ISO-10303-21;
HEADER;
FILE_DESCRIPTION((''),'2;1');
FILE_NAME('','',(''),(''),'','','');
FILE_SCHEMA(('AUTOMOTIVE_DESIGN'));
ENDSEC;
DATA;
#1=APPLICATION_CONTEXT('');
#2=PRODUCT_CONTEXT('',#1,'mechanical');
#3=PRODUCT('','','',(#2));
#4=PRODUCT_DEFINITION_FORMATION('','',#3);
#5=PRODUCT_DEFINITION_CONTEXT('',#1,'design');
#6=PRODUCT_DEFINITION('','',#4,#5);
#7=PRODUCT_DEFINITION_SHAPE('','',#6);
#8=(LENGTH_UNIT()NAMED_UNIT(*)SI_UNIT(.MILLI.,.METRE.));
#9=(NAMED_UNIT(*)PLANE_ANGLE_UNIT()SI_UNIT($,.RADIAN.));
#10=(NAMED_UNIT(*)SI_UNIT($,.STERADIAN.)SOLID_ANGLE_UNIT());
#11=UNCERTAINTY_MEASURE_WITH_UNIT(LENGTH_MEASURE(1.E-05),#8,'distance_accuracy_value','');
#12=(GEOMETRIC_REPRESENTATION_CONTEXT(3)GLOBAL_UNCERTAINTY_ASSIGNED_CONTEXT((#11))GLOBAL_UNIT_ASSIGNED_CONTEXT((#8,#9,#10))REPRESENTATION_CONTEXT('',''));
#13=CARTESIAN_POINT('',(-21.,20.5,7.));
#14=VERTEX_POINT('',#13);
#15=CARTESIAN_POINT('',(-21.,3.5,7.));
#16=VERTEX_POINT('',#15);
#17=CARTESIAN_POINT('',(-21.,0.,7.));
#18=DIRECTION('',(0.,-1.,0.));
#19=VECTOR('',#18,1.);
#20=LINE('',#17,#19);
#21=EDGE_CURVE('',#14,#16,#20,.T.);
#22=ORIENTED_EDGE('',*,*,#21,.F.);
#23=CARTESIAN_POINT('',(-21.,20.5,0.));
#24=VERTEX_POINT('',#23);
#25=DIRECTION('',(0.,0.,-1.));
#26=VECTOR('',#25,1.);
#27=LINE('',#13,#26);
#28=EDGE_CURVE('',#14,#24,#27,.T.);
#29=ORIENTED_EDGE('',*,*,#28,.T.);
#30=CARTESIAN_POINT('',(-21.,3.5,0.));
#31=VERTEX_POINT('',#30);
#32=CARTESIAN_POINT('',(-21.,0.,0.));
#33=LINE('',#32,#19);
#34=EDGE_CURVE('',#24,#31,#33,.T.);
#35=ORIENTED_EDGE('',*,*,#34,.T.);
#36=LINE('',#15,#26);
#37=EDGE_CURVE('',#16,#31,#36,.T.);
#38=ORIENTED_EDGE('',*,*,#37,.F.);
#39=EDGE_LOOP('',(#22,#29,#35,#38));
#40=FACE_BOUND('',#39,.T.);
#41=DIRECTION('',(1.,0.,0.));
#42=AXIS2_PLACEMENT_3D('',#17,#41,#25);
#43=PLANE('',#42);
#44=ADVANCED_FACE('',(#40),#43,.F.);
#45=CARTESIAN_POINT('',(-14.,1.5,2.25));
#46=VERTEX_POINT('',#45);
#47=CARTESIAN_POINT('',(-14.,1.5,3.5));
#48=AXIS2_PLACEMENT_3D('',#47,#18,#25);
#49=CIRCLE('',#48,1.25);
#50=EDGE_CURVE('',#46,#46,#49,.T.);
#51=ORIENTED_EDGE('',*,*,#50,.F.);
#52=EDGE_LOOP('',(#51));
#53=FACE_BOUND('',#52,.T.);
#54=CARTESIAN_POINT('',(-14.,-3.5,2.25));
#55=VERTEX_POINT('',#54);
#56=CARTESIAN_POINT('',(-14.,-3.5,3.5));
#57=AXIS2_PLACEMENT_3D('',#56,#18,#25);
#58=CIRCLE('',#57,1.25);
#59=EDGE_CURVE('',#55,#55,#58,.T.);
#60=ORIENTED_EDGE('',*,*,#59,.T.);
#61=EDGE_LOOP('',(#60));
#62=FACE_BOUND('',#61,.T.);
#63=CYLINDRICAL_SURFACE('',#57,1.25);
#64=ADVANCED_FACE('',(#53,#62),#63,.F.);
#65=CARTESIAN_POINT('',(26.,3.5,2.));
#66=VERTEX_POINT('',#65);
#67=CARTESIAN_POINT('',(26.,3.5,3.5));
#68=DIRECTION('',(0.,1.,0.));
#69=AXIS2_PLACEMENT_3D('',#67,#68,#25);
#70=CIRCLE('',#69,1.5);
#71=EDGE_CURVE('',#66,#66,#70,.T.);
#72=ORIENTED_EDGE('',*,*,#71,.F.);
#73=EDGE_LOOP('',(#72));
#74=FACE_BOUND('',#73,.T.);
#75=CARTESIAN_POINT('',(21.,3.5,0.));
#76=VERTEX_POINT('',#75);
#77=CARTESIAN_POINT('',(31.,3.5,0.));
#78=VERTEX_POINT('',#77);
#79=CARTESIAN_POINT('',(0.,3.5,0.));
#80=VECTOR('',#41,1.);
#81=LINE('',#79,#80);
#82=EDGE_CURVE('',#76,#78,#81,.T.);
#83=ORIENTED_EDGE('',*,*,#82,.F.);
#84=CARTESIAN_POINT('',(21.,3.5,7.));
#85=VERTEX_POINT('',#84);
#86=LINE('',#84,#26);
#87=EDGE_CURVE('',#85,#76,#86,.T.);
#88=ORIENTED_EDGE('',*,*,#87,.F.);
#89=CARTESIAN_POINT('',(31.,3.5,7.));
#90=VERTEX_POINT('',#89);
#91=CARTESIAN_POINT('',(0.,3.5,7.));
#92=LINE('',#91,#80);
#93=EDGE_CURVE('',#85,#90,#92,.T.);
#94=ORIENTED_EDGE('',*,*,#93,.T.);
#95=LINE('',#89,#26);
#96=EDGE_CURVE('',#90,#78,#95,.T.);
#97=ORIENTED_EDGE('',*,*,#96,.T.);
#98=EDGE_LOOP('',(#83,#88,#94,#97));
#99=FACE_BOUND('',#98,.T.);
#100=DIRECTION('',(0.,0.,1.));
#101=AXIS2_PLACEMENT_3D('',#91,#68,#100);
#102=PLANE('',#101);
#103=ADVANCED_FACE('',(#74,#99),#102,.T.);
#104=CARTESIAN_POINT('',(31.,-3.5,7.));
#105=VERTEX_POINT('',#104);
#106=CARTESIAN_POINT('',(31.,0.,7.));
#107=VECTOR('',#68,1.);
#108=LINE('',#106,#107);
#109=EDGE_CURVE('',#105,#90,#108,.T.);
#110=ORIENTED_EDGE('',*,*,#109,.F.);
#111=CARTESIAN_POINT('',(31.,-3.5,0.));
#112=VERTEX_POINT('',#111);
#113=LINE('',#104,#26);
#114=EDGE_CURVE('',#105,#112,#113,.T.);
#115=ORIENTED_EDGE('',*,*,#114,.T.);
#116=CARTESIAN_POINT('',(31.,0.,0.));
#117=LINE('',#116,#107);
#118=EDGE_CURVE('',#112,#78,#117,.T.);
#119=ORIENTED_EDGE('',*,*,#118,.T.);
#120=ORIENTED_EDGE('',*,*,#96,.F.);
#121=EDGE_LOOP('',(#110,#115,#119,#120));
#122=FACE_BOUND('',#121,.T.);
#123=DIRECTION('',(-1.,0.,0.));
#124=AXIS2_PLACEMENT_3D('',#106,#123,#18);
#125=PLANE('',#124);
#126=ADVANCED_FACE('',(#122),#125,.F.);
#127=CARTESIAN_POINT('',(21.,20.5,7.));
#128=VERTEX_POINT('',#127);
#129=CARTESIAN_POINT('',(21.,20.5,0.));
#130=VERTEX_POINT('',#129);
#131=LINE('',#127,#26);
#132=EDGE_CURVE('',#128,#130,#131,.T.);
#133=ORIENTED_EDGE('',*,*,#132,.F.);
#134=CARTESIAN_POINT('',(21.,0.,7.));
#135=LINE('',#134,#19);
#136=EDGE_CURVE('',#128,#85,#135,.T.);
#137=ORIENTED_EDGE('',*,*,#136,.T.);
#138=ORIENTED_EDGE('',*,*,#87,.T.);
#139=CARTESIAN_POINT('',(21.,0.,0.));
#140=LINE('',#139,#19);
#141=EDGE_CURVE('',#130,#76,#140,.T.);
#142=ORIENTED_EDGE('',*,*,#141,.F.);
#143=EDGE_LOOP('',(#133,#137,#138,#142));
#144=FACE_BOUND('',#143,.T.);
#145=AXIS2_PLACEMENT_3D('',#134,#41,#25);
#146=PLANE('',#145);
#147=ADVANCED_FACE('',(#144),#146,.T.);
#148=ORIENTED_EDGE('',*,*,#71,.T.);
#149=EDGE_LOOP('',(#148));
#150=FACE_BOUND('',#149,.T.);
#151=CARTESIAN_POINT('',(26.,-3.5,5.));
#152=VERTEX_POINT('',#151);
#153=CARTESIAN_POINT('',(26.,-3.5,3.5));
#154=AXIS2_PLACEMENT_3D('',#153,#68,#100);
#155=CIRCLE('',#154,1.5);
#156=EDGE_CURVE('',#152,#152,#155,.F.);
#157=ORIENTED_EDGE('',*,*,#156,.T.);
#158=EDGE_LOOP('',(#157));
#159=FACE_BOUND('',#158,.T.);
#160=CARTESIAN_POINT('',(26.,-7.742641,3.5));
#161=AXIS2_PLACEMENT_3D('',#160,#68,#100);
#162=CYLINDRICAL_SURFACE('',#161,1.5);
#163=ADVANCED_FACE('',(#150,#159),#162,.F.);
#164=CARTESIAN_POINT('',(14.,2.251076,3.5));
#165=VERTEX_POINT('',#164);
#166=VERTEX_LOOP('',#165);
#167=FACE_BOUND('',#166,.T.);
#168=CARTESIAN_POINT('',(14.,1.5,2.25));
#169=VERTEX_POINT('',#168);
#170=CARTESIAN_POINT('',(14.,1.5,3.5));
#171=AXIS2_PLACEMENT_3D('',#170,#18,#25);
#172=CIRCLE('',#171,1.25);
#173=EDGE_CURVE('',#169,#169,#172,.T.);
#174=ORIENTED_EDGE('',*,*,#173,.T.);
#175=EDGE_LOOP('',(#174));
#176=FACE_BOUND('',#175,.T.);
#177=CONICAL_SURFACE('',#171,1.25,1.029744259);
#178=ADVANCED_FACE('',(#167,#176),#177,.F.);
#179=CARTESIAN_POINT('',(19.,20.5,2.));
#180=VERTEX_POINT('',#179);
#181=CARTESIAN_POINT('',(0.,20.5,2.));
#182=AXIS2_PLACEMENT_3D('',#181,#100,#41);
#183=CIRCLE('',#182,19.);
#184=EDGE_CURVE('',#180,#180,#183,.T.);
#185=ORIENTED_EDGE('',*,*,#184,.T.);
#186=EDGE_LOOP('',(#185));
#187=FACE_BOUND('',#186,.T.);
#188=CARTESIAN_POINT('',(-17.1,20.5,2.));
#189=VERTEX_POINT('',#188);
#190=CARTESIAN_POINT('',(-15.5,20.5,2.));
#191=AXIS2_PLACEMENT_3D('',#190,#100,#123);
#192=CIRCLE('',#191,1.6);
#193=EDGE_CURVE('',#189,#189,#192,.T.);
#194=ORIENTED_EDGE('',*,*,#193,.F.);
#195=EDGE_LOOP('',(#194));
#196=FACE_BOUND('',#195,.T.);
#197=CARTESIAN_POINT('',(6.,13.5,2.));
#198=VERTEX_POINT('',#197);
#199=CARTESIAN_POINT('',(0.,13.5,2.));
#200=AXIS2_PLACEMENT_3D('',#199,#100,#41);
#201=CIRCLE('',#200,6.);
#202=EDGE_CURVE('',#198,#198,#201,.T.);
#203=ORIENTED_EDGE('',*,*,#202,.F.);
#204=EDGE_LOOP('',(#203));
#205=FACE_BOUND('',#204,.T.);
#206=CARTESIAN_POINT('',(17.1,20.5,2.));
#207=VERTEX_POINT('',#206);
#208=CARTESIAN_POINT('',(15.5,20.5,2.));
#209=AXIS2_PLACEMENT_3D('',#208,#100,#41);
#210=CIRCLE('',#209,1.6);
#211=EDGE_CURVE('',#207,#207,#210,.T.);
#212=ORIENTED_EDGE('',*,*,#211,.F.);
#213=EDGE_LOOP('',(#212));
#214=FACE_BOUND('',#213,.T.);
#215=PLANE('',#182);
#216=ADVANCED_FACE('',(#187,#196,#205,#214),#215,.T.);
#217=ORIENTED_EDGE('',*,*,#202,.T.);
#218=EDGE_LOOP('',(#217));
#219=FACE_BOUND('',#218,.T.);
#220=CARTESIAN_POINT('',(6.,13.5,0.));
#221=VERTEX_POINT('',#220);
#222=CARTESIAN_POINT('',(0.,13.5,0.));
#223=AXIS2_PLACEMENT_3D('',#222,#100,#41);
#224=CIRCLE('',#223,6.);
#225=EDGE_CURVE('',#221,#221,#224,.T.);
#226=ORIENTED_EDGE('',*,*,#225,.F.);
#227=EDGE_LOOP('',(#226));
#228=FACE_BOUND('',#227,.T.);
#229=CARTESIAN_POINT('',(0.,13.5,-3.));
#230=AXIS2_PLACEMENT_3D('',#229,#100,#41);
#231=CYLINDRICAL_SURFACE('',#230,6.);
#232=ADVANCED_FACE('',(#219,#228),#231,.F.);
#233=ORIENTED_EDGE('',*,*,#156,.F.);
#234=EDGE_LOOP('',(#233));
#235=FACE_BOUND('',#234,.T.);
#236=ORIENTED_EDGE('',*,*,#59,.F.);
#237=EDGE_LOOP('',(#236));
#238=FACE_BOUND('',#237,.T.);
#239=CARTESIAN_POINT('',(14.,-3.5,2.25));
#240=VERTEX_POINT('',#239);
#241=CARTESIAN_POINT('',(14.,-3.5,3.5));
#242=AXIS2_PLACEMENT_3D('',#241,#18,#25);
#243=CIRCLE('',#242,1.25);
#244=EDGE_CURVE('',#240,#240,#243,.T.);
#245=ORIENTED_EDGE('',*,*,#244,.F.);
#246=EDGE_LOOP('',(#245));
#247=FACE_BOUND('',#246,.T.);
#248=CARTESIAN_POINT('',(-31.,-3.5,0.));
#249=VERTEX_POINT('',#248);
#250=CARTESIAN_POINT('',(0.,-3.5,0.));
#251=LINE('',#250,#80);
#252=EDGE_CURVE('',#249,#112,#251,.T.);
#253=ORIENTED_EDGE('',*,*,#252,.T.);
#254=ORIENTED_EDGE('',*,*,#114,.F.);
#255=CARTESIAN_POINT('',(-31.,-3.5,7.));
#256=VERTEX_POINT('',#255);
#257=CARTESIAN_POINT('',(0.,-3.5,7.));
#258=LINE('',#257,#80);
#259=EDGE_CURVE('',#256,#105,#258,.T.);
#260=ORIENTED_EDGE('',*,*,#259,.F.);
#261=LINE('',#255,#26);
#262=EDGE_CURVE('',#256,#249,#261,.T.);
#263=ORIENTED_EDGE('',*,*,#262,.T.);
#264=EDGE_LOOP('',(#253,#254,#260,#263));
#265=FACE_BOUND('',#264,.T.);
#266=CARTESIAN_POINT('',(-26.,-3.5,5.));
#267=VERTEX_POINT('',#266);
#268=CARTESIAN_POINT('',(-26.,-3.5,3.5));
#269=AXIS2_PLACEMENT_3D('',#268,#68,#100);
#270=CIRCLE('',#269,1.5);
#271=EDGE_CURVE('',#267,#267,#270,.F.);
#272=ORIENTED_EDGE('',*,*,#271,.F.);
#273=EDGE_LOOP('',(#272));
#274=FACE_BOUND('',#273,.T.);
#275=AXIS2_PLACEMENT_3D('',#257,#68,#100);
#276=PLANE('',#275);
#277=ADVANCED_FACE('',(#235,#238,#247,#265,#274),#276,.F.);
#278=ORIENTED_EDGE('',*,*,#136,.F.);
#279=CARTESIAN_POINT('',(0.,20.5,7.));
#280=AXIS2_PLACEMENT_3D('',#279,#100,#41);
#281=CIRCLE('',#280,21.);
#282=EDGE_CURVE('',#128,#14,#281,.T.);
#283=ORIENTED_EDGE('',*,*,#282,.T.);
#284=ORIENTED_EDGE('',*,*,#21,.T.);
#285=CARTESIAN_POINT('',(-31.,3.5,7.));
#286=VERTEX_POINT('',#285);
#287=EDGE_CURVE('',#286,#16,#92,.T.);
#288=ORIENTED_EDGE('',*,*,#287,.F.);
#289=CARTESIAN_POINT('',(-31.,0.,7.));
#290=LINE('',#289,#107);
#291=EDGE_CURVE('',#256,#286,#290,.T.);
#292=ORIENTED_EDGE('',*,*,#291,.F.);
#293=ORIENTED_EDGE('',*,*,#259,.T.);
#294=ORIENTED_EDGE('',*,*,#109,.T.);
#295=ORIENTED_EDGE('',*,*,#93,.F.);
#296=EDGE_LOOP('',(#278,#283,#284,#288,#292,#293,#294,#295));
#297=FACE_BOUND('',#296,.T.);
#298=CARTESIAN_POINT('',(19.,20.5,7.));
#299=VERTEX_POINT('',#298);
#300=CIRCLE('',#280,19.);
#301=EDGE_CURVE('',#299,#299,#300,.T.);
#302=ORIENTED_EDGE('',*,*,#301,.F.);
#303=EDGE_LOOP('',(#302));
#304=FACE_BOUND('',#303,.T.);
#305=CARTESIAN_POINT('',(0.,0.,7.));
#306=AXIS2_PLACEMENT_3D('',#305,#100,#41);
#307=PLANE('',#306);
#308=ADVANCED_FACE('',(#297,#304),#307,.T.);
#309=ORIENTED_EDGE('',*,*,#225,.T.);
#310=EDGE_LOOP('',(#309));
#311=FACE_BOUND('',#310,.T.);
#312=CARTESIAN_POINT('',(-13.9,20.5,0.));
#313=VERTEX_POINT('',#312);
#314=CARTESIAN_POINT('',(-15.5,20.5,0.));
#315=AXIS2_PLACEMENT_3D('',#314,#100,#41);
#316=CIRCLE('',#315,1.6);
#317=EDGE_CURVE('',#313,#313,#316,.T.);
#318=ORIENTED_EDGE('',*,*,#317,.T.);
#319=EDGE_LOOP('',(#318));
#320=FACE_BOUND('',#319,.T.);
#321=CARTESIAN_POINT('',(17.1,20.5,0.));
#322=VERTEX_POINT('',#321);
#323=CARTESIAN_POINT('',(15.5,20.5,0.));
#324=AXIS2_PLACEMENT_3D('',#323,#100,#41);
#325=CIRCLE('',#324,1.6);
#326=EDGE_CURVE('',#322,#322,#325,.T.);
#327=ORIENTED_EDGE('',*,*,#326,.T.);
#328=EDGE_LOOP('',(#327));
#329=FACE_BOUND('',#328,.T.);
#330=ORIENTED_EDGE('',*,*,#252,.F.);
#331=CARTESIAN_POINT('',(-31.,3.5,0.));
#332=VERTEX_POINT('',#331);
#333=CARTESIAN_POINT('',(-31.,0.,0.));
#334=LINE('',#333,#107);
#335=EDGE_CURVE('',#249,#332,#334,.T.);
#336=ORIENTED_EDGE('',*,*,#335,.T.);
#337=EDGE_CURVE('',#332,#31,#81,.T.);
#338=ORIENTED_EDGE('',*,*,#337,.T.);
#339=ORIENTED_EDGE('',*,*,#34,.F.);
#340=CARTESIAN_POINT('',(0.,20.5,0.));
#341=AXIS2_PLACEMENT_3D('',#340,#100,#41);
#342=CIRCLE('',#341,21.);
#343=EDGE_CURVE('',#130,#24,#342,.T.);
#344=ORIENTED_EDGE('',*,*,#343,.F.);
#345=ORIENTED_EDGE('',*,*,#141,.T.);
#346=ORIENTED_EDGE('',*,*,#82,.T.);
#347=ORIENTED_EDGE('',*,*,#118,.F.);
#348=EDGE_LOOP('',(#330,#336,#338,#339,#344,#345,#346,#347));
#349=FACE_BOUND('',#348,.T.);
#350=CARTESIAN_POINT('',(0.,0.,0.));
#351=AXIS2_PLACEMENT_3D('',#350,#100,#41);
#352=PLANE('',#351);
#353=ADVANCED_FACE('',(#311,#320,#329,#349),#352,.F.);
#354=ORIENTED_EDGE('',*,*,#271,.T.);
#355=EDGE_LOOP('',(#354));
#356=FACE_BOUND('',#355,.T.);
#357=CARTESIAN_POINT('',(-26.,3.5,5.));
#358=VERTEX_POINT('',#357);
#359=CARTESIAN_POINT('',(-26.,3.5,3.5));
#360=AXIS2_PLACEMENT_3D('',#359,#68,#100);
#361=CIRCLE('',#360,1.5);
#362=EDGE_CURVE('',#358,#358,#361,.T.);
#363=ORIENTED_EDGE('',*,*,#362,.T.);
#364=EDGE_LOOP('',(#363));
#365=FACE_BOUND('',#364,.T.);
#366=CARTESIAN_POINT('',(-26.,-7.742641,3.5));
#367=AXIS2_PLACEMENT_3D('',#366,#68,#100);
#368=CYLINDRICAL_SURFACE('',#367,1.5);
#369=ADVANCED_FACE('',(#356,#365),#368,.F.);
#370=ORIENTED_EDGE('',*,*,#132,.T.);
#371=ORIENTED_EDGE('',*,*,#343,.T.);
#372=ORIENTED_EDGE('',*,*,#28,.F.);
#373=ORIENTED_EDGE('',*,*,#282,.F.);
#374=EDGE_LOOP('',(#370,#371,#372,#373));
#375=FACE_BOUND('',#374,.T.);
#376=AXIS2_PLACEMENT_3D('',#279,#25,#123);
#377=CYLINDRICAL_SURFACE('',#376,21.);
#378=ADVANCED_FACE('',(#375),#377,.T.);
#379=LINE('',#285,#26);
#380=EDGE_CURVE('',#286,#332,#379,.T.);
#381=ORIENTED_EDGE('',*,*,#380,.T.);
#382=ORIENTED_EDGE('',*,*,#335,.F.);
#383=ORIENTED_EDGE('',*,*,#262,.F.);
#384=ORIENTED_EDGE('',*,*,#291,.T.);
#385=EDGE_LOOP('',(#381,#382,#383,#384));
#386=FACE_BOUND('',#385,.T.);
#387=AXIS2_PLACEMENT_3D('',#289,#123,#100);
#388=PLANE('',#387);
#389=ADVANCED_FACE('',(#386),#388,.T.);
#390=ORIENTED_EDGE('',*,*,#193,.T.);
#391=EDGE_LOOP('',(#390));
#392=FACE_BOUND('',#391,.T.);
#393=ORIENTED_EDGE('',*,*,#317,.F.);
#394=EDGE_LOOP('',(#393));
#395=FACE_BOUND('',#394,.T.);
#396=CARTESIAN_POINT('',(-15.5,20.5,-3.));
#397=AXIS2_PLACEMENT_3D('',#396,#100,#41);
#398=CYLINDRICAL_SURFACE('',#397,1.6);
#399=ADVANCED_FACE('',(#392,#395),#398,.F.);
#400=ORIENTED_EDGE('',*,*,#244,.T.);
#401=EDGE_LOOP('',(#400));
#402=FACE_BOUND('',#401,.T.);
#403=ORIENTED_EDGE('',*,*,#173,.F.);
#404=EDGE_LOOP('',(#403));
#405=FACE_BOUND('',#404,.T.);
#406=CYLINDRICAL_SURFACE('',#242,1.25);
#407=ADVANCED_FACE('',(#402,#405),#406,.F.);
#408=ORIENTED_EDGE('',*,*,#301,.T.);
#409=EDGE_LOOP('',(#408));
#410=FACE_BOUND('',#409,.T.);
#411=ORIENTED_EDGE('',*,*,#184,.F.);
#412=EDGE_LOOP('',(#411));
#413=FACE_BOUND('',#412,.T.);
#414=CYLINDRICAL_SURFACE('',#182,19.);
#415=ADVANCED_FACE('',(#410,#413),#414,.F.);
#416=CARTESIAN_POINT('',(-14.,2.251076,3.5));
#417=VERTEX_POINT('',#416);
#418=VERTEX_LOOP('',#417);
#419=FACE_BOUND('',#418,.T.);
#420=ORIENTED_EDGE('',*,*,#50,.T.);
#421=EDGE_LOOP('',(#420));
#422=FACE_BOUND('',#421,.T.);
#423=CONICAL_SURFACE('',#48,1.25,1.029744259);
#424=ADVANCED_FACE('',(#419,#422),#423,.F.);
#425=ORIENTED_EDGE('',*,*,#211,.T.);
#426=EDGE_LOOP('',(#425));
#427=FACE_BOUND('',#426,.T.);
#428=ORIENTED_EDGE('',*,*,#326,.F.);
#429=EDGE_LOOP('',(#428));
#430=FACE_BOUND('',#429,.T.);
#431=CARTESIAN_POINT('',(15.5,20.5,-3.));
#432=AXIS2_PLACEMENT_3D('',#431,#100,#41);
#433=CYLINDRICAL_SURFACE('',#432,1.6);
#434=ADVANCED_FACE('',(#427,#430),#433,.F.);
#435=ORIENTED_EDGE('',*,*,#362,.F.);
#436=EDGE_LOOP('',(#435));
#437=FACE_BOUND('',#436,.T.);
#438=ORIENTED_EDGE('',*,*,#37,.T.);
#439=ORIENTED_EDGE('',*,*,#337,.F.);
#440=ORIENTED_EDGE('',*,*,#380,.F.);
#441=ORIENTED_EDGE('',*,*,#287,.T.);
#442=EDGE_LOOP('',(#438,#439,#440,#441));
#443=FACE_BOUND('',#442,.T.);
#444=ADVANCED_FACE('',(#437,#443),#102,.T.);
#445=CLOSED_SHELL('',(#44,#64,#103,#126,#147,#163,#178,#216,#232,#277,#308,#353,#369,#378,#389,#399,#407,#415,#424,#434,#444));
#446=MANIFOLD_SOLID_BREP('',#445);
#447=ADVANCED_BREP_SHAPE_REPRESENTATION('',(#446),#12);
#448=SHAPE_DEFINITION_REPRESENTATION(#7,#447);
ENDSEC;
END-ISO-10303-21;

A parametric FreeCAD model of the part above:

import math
import FreeCAD as App
import Part
import Sketcher
Q = App.Units.Quantity

doc = App.newDocument("Part")
body = doc.addObject("PartDesign::Body", "Body")

# Sketch on XY plane
sketch1 = doc.addObject("Sketcher::SketchObject", "Sketch")
body.addObject(sketch1)
sketch1.AttachmentSupport = (doc.XY_Plane, [""])
sketch1.MapMode = "FlatFace"
sketch1.addGeometry([
    Part.LineSegment(App.Vector(31, 4, 0), App.Vector(21, 4, 0)),  # 0
    Part.LineSegment(App.Vector(21, 4, 0), App.Vector(21, 20, 0)),  # 1
    Part.ArcOfCircle(Part.Circle(App.Vector(0, 20, 0), App.Vector(0, 0, 1), 21), math.radians(0), math.radians(180)),  # 2
    Part.LineSegment(App.Vector(-21, 20, 0), App.Vector(-21, 4, 0)),  # 3
    Part.LineSegment(App.Vector(-21, 4, 0), App.Vector(-31, 4, 0)),  # 4
    Part.LineSegment(App.Vector(-31, 4, 0), App.Vector(-31, -4, 0)),  # 5
    Part.LineSegment(App.Vector(-31, -4, 0), App.Vector(31, -4, 0)),  # 6
    Part.LineSegment(App.Vector(31, -4, 0), App.Vector(31, 4, 0)),  # 7
], False)
sketch1.addConstraint([
    Sketcher.Constraint("Coincident", 0, 2, 1, 1),
    Sketcher.Constraint("Tangent", 1, 2, 2, 1),
    Sketcher.Constraint("Tangent", 2, 2, 3, 1),
    Sketcher.Constraint("Coincident", 3, 2, 4, 1),
    Sketcher.Constraint("Coincident", 4, 2, 5, 1),
    Sketcher.Constraint("Coincident", 5, 2, 6, 1),
    Sketcher.Constraint("Coincident", 6, 2, 7, 1),
    Sketcher.Constraint("Coincident", 7, 2, 0, 1),
    Sketcher.Constraint("Horizontal", 0),
    Sketcher.Constraint("Vertical", 1),
    Sketcher.Constraint("Vertical", 3),
    Sketcher.Constraint("Horizontal", 4),
    Sketcher.Constraint("Vertical", 5),
    Sketcher.Constraint("Horizontal", 6),
    Sketcher.Constraint("Vertical", 7),
    Sketcher.Constraint("Symmetric", 4, 2, 6, 2, -1, 1),
    Sketcher.Constraint("Symmetric", 0, 2, 3, 2, -2),
    Sketcher.Constraint("Radius", 2, Q("21 mm")),
    Sketcher.Constraint("DistanceX", 0, 2, 0, 1, Q("10 mm")),
    Sketcher.Constraint("DistanceY", 1, 1, 1, 2, Q("17 mm")),
    Sketcher.Constraint("DistanceY", 5, 2, 5, 1, Q("7 mm")),
])
pad1 = doc.addObject("PartDesign::Pad", "Pad")
body.addObject(pad1)
pad1.Profile = sketch1
pad1.Length = 7

# Sketch on XY plane
sketch2 = doc.addObject("Sketcher::SketchObject", "Sketch001")
body.addObject(sketch2)
sketch2.AttachmentSupport = (doc.XY_Plane, [""])
sketch2.MapMode = "FlatFace"
sketch2.AttachmentOffset = App.Placement(App.Vector(0, 0, 7), App.Rotation())
sketch2.addGeometry(Part.Circle(App.Vector(0, 20, 0), App.Vector(0, 0, 1), 19), False)
sketch2.addConstraint([
    Sketcher.Constraint("PointOnObject", 0, 3, -2),
    Sketcher.Constraint("Diameter", 0, Q("38 mm")),
    Sketcher.Constraint("DistanceY", -1, 1, 0, 3, Q("20.5 mm")),
])
pocket1 = doc.addObject("PartDesign::Pocket", "Pocket")
body.addObject(pocket1)
pocket1.Profile = sketch2
pocket1.Length = 5

# Sketch on XY plane
sketch3 = doc.addObject("Sketcher::SketchObject", "Sketch002")
body.addObject(sketch3)
sketch3.AttachmentSupport = (doc.XY_Plane, [""])
sketch3.MapMode = "FlatFace"
sketch3.AttachmentOffset = App.Placement(App.Vector(0, 0, 2), App.Rotation())
sketch3.addGeometry([
    Part.Circle(App.Vector(0, 13.5, 0), App.Vector(0, 0, 1), 6),
    Part.Circle(App.Vector(15.5, 20.5, 0), App.Vector(0, 0, 1), 1.6),
    Part.Circle(App.Vector(-15.5, 20.5, 0), App.Vector(0, 0, 1), 1.6),
], False)
sketch3.addConstraint([
    Sketcher.Constraint("Equal", 1, 2),
    Sketcher.Constraint("Symmetric", 1, 3, 2, 3, -2),
    Sketcher.Constraint("PointOnObject", 0, 3, -2),
    Sketcher.Constraint("Diameter", 0, Q("12 mm")),
    Sketcher.Constraint("Diameter", 1, Q("3.2 mm")),
    Sketcher.Constraint("DistanceY", 0, 3, 1, 3, Q("7 mm")),
    Sketcher.Constraint("DistanceX", 2, 3, 1, 3, Q("31 mm")),
    Sketcher.Constraint("DistanceY", -1, 1, 0, 3, Q("13.5 mm")),
])
pocket2 = doc.addObject("PartDesign::Pocket", "Pocket001")
body.addObject(pocket2)
pocket2.Profile = sketch3
pocket2.Length = 5

# Sketch on XZ plane
sketch4 = doc.addObject("Sketcher::SketchObject", "Sketch003")
body.addObject(sketch4)
sketch4.AttachmentSupport = (doc.XZ_Plane, [""])
sketch4.MapMode = "FlatFace"
sketch4.AttachmentOffset = App.Placement(App.Vector(0, 0, 3.5), App.Rotation())
sketch4.addGeometry([
    Part.Circle(App.Vector(-14, 3.5, 0), App.Vector(0, 0, 1), 1.2),
    Part.Circle(App.Vector(14, 3.5, 0), App.Vector(0, 0, 1), 1.2),
], False)
sketch4.addConstraint([
    Sketcher.Constraint("Equal", 0, 1),
    Sketcher.Constraint("Symmetric", 0, 3, 1, 3, -2),
    Sketcher.Constraint("Diameter", 0, Q("2.5 mm")),
    Sketcher.Constraint("DistanceX", 0, 3, -1, 1, Q("14 mm")),
    Sketcher.Constraint("DistanceY", -1, 1, 0, 3, Q("3.5 mm")),
])
doc.recompute()
hole = doc.addObject("PartDesign::Hole", "Hole")
body.addObject(hole)
hole.Profile = sketch4
hole.ThreadType = "None"
hole.Diameter = 2.5
hole.DepthType = "Dimension"
hole.Depth = 5
hole.DrillPoint = "Angled"
hole.DrillPointAngle = 118

# Sketch on XZ plane
sketch5 = doc.addObject("Sketcher::SketchObject", "Sketch004")
body.addObject(sketch5)
sketch5.AttachmentSupport = (doc.XZ_Plane, [""])
sketch5.MapMode = "FlatFace"
sketch5.AttachmentOffset = App.Placement(App.Vector(0, 0, -3.5), App.Rotation())
sketch5.addGeometry([
    Part.Circle(App.Vector(-26, 3.5, 0), App.Vector(0, 0, 1), 1.5),
    Part.Circle(App.Vector(26, 3.5, 0), App.Vector(0, 0, 1), 1.5),
], False)
sketch5.addConstraint([
    Sketcher.Constraint("Equal", 0, 1),
    Sketcher.Constraint("Symmetric", 0, 3, 1, 3, -2),
    Sketcher.Constraint("Diameter", 0, Q("3 mm")),
    Sketcher.Constraint("DistanceX", 0, 3, -1, 1, Q("26 mm")),
    Sketcher.Constraint("DistanceY", -1, 1, 0, 3, Q("3.5 mm")),
])
pocket3 = doc.addObject("PartDesign::Pocket", "Pocket002")
body.addObject(pocket3)
pocket3.Profile = sketch5
pocket3.Length = 7
pocket3.Reversed = True

doc.recompute()
